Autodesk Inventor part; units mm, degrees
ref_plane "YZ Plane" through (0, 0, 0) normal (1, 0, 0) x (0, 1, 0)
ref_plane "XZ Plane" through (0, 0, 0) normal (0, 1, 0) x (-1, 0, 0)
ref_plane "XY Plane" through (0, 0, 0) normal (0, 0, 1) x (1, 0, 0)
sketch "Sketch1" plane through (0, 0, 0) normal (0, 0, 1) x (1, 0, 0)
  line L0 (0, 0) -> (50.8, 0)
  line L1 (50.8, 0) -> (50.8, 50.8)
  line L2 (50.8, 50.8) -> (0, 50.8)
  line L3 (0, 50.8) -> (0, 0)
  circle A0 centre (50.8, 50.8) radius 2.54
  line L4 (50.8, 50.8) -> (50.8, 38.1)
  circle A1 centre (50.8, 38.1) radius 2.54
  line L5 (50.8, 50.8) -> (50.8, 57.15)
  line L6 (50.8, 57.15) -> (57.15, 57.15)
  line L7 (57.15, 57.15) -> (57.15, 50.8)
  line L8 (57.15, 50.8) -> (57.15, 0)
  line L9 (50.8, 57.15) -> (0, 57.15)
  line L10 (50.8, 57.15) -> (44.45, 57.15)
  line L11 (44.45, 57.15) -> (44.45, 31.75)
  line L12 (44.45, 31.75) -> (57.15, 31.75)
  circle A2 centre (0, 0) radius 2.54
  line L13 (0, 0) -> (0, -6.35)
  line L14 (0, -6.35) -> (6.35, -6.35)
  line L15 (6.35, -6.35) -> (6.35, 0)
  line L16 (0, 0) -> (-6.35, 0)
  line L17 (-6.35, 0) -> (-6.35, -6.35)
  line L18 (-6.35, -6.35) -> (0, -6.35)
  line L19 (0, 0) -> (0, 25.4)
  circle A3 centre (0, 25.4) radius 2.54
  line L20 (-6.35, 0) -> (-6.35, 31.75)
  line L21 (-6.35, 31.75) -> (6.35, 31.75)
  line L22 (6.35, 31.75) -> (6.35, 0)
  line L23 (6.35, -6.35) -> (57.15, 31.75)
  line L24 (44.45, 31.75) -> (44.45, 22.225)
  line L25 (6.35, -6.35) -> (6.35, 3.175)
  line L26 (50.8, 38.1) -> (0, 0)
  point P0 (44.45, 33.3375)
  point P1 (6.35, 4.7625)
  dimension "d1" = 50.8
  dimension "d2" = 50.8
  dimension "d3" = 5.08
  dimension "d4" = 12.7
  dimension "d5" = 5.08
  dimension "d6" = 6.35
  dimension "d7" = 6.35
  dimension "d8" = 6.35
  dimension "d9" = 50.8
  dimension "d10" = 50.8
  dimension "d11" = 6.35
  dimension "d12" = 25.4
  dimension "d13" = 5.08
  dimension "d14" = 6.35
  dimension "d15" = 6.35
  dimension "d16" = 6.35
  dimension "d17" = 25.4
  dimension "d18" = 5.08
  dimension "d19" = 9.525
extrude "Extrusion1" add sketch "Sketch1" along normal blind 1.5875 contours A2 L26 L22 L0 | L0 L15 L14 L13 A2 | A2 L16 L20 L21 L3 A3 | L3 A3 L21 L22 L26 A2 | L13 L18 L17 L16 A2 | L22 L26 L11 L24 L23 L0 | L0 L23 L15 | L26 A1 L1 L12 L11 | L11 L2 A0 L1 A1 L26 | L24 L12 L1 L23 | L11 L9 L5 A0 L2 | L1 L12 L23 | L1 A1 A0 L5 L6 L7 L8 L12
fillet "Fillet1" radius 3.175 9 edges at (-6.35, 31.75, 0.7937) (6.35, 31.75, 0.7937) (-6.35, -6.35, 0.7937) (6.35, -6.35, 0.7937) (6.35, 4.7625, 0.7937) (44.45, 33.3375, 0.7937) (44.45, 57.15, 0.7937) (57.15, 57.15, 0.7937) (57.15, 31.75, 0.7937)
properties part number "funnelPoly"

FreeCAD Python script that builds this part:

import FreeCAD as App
import Part
import Sketcher
Q = App.Units.Quantity


def edges_at(feature, points):
    """Names of the edges that pass closest to the given points."""
    edges = feature.Shape.Edges
    near = lambda p: min(range(len(edges)), key=lambda i: edges[i].distToShape(Part.Vertex(*p))[0])
    return sorted({f"Edge{near(p) + 1}" for p in points})

doc = App.newDocument("Part")
body = doc.addObject("PartDesign::Body", "Body")

sketch1 = body.newObject("Sketcher::SketchObject", "Sketch")
sketch1.AttachmentSupport = (doc.getObject("XY_Plane"), [""])
sketch1.MapMode = "FlatFace"
sketch1.addGeometry([
    Part.LineSegment(App.Vector(6.3, 31.8, 0), App.Vector(-6.3, 31.8, 0)),
    Part.LineSegment(App.Vector(-6.3, 31.8, 0), App.Vector(-6.3, -6.3, 0)),
    Part.LineSegment(App.Vector(-6.3, -6.3, 0), App.Vector(6.3, -6.3, 0)),
    Part.LineSegment(App.Vector(6.3, -6.3, 0), App.Vector(57.1, 31.8, 0)),
    Part.LineSegment(App.Vector(57.1, 31.8, 0), App.Vector(57.1, 57.1, 0)),
    Part.LineSegment(App.Vector(57.1, 57.1, 0), App.Vector(44.5, 57.1, 0)),
    Part.LineSegment(App.Vector(44.5, 57.1, 0), App.Vector(44.5, 33.3, 0)),
    Part.LineSegment(App.Vector(44.5, 33.3, 0), App.Vector(6.3, 4.8, 0)),
    Part.LineSegment(App.Vector(6.3, 4.8, 0), App.Vector(6.3, 31.8, 0)),
    Part.Circle(App.Vector(0, 0, 0), App.Vector(0, 0, 1), 2.5),
    Part.Circle(App.Vector(0, 25.4, 0), App.Vector(0, 0, 1), 2.5),
    Part.Circle(App.Vector(50.8, 38.1, 0), App.Vector(0, 0, 1), 2.5),
    Part.Circle(App.Vector(50.8, 50.8, 0), App.Vector(0, 0, 1), 2.5),
], False)
sketch1.addConstraint([
    Sketcher.Constraint("Coincident", 0, 2, 1, 1),
    Sketcher.Constraint("Coincident", 1, 2, 2, 1),
    Sketcher.Constraint("Coincident", 2, 2, 3, 1),
    Sketcher.Constraint("Coincident", 3, 2, 4, 1),
    Sketcher.Constraint("Coincident", 4, 2, 5, 1),
    Sketcher.Constraint("Coincident", 5, 2, 6, 1),
    Sketcher.Constraint("Coincident", 6, 2, 7, 1),
    Sketcher.Constraint("Coincident", 7, 2, 8, 1),
    Sketcher.Constraint("Coincident", 8, 2, 0, 1),
    Sketcher.Constraint("Horizontal", 0),
    Sketcher.Constraint("Vertical", 1),
    Sketcher.Constraint("Horizontal", 2),
    Sketcher.Constraint("Vertical", 4),
    Sketcher.Constraint("Horizontal", 5),
    Sketcher.Constraint("Vertical", 6),
    Sketcher.Constraint("Vertical", 8),
    Sketcher.Constraint("Coincident", 9, 3, -1, 1),
    Sketcher.Constraint("Equal", 9, 10),
    Sketcher.Constraint("Equal", 10, 11),
    Sketcher.Constraint("Equal", 11, 12),
    Sketcher.Constraint("PointOnObject", 10, 3, -2),
    Sketcher.Constraint("Parallel", 3, 7),
    Sketcher.Constraint("Horizontal", 0, 2, 3, 2),
    Sketcher.Constraint("Vertical", 11, 3, 12, 3),
    Sketcher.Constraint("Vertical", 2, 2, 7, 2),
    Sketcher.Constraint("Equal", 2, 5),
    Sketcher.Constraint("Diameter", 9, Q("0.2 in")),
    Sketcher.Constraint("DistanceY", 4, 1, 4, 2, Q("1 in")),
    Sketcher.Constraint("DistanceX", 0, 2, 0, 1, Q("0.5 in")),
    Sketcher.Constraint("DistanceY", -1, 1, 10, 3, Q("1 in")),
    Sketcher.Constraint("DistanceX", -1, 1, 11, 3, Q("2 in")),
    Sketcher.Constraint("DistanceY", -1, 1, 12, 3, Q("2 in")),
    Sketcher.Constraint("DistanceX", 2, 2, 3, 2, Q("2 in")),
    Sketcher.Constraint("DistanceY", 10, 3, 11, 3, Q("0.5 in")),
    Sketcher.Constraint("DistanceX", 0, 2, -1, 1, Q("0.25 in")),
    Sketcher.Constraint("DistanceY", 1, 2, -1, 1, Q("0.25 in")),
    Sketcher.Constraint("DistanceY", 10, 3, 0, 2, Q("0.25 in")),
    Sketcher.Constraint("DistanceY", 6, 2, 6, 1, Q("0.9375 in")),
])
pad1 = body.newObject("PartDesign::Pad", "Pad")
pad1.Profile = sketch1
pad1.Length = Q("0.0625 in")
doc.recompute()

fillet = body.newObject("PartDesign::Fillet", "Fillet")
fillet.Base = (pad1, edges_at(pad1, [
    (-6.35, 31.75, 0.794),
    (6.35, 31.75, 0.794),
    (-6.35, -6.35, 0.794),
    (6.35, -6.35, 0.794),
    (6.35, 4.763, 0.794),
    (44.45, 33.337, 0.794),
    (44.45, 57.15, 0.794),
    (57.15, 57.15, 0.794),
    (57.15, 31.75, 0.794),
]))
fillet.Radius = Q("0.125 in")

doc.recompute()
